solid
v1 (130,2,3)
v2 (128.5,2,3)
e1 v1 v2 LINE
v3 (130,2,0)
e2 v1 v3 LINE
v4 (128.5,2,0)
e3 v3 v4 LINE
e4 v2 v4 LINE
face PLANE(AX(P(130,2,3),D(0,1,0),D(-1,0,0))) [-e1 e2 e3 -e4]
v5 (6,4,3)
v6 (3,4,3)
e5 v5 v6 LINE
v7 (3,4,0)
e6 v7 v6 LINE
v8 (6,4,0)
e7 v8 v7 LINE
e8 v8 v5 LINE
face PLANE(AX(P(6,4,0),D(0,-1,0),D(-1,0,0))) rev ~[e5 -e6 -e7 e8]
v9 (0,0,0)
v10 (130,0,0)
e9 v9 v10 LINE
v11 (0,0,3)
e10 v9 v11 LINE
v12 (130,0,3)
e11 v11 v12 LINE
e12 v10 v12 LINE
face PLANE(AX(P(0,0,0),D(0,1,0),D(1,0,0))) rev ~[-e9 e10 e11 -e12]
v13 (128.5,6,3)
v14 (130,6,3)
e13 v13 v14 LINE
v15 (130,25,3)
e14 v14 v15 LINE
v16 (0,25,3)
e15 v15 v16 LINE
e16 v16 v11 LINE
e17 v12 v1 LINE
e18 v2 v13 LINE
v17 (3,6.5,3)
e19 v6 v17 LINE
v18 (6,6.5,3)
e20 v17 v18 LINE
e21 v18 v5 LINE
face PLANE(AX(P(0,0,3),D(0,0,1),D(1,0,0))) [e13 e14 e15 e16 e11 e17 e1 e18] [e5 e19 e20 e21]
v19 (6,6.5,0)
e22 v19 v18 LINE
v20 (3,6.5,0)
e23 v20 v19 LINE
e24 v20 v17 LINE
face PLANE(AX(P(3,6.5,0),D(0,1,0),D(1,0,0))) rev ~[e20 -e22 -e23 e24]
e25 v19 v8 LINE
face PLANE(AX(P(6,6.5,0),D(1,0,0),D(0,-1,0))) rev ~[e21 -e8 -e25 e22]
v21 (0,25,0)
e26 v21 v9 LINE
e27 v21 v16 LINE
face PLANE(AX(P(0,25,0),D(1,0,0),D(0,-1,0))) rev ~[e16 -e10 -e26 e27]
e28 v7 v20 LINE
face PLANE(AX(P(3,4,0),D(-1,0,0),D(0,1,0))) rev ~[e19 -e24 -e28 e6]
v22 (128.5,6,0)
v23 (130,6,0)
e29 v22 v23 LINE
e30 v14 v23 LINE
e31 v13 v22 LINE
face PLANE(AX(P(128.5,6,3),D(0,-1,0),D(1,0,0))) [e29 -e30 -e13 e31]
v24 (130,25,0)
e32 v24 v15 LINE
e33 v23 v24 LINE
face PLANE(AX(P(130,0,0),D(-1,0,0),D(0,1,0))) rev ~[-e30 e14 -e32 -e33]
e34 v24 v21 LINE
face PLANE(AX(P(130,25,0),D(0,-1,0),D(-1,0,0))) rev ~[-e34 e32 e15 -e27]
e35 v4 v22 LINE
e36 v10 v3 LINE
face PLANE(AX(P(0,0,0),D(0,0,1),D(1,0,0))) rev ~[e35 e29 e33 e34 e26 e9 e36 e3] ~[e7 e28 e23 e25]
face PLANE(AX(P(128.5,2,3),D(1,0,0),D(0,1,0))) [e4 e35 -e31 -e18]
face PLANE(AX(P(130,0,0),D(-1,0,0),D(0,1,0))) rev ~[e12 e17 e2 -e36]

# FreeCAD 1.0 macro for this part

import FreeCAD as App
import Part
import Sketcher
from FreeCAD import Vector


def add_polygon(sketch, points):
    """Adds a closed chain of lines whose ends are joined by coincident constraints."""
    first, n = sketch.GeometryCount, len(points)
    for a, b in zip(points, points[1:] + points[:1]):
        sketch.addGeometry(Part.LineSegment(App.Vector(*a, 0), App.Vector(*b, 0)), False)
    for i in range(n):
        sketch.addConstraint(Sketcher.Constraint("Coincident", first + i, 2, first + (i + 1) % n, 1))

doc = App.newDocument("Part")
body = doc.addObject("PartDesign::Body", "Body")

# Sketch on XY plane
sketch1 = body.newObject("Sketcher::SketchObject", "Sketch")
sketch1.AttachmentSupport = (doc.getObject("XY_Plane"), [""])
sketch1.MapMode = "FlatFace"
add_polygon(sketch1, [(0, 25), (0, 0), (130, 0), (130, 25)])  # lines 0-3
add_polygon(sketch1, [(3, 4), (3, 6.5), (6, 6.5), (6, 4)])  # lines 4-7
sketch1.addConstraint([
    Sketcher.Constraint("Vertical", 0),
    Sketcher.Constraint("Horizontal", 1),
    Sketcher.Constraint("Vertical", 2),
    Sketcher.Constraint("Horizontal", 3),
    Sketcher.Constraint("Vertical", 4),
    Sketcher.Constraint("Horizontal", 5),
    Sketcher.Constraint("Vertical", 6),
    Sketcher.Constraint("Horizontal", 7),
    Sketcher.Constraint("Coincident", 0, 2, -1, 1),
    Sketcher.Constraint("DistanceX", 1, 1, 1, 2, 130.0),
    Sketcher.Constraint("DistanceX", 5, 1, 5, 2, 3.0),
    Sketcher.Constraint("DistanceY", 0, 2, 0, 1, 25.0),
    Sketcher.Constraint("DistanceY", 4, 1, 4, 2, 2.5),
    Sketcher.Constraint("DistanceX", -1, 1, 4, 2, 3.0),
    Sketcher.Constraint("DistanceY", -1, 1, 6, 2, 4.0),
])
pad1 = body.newObject("PartDesign::Pad", "Pad")
pad1.Profile = sketch1
pad1.Length = 3

# Sketch on XY plane
sketch2 = body.newObject("Sketcher::SketchObject", "Sketch001")
sketch2.AttachmentSupport = (doc.getObject("XY_Plane"), [""])
sketch2.MapMode = "FlatFace"
sketch2.AttachmentOffset = App.Placement(Vector(0, 0, 3), App.Rotation())
add_polygon(sketch2, [(128.5, 2), (130, 2), (130, 6), (128.5, 6)])  # lines 0-3
sketch2.addConstraint([
    Sketcher.Constraint("Horizontal", 0),
    Sketcher.Constraint("Vertical", 1),
    Sketcher.Constraint("Horizontal", 2),
    Sketcher.Constraint("Vertical", 3),
    Sketcher.Constraint("DistanceY", 1, 1, 1, 2, 4.0),
    Sketcher.Constraint("DistanceX", 0, 1, 0, 2, 1.5),
    Sketcher.Constraint("DistanceY", -1, 1, 0, 2, 2.0),
    Sketcher.Constraint("DistanceX", -1, 1, 0, 2, 130.0),
])
pocket1 = body.newObject("PartDesign::Pocket", "Pocket")
pocket1.Profile = sketch2
pocket1.Type = "ThroughAll"

doc.recompute()
